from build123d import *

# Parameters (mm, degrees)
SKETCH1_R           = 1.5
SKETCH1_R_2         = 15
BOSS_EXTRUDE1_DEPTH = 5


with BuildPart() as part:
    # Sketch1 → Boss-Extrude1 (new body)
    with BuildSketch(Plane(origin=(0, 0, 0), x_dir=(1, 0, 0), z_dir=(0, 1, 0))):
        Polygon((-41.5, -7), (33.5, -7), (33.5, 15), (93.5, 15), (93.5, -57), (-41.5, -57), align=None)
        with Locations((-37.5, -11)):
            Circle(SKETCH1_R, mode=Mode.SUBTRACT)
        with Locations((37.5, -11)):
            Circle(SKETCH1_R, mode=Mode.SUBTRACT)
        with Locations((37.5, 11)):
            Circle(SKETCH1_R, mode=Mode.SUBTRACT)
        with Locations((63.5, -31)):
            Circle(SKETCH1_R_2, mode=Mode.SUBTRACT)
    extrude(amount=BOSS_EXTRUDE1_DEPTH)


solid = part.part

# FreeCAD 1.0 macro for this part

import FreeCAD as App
import Part
import Sketcher
from FreeCAD import Vector
Q = App.Units.Quantity


def add_polygon(sketch, points):
    """Adds a closed chain of lines whose ends are joined by coincident constraints."""
    first, n = sketch.GeometryCount, len(points)
    for a, b in zip(points, points[1:] + points[:1]):
        sketch.addGeometry(Part.LineSegment(App.Vector(*a, 0), App.Vector(*b, 0)), False)
    for i in range(n):
        sketch.addConstraint(Sketcher.Constraint("Coincident", first + i, 2, first + (i + 1) % n, 1))

doc = App.newDocument("Part")
body = doc.addObject("PartDesign::Body", "Body")

# Sketch on XZ plane
sketch1 = body.newObject("Sketcher::SketchObject", "Sketch")
sketch1.AttachmentSupport = (doc.getObject("XZ_Plane"), [""])
sketch1.MapMode = "FlatFace"
add_polygon(sketch1, [(33.5, 7), (-41.5, 7), (-41.5, 57), (93.5, 57), (93.5, -15), (33.5, -15)])  # lines 0-5
sketch1.addGeometry(Part.Circle(Vector(63.5, 31, 0), Vector(0, 0, 1), 15), False)  # 6
sketch1.addGeometry(Part.Circle(Vector(37.5, 11, 0), Vector(0, 0, 1), 1.5), False)  # 7
sketch1.addGeometry(Part.Circle(Vector(37.5, -11, 0), Vector(0, 0, 1), 1.5), False)  # 8
sketch1.addGeometry(Part.Circle(Vector(-37.5, 11, 0), Vector(0, 0, 1), 1.5), False)  # 9
sketch1.addConstraint([
    Sketcher.Constraint("Horizontal", 0),
    Sketcher.Constraint("Vertical", 1),
    Sketcher.Constraint("Horizontal", 2),
    Sketcher.Constraint("Vertical", 3),
    Sketcher.Constraint("Horizontal", 4),
    Sketcher.Constraint("Vertical", 5),
    Sketcher.Constraint("Equal", 7, 8),
    Sketcher.Constraint("Equal", 8, 9),
    Sketcher.Constraint("Symmetric", 8, 3, 9, 3, -1, 1),
    Sketcher.Constraint("Symmetric", 7, 3, 9, 3, -2),
    Sketcher.Constraint("Diameter", 6, Q("30 mm")),
    Sketcher.Constraint("Diameter", 7, Q("3 mm")),
    Sketcher.Constraint("DistanceX", 0, 2, 0, 1, Q("75 mm")),
    Sketcher.Constraint("DistanceX", 2, 1, 2, 2, Q("135 mm")),
    Sketcher.Constraint("DistanceY", 1, 1, 1, 2, Q("50 mm")),
    Sketcher.Constraint("DistanceY", 3, 2, 3, 1, Q("72 mm")),
    Sketcher.Constraint("DistanceY", -1, 1, 6, 3, Q("31 mm")),
    Sketcher.Constraint("DistanceY", -1, 1, 7, 3, Q("11 mm")),
    Sketcher.Constraint("DistanceY", -1, 1, 0, 2, Q("7 mm")),
    Sketcher.Constraint("DistanceX", 7, 3, 6, 3, Q("26 mm")),
    Sketcher.Constraint("DistanceX", 9, 3, 7, 3, Q("75 mm")),
    Sketcher.Constraint("DistanceX", 0, 2, 9, 3, Q("4 mm")),
])
pad1 = body.newObject("PartDesign::Pad", "Pad")
pad1.Profile = sketch1
pad1.Length = 5
pad1.Reversed = True

doc.recompute()
